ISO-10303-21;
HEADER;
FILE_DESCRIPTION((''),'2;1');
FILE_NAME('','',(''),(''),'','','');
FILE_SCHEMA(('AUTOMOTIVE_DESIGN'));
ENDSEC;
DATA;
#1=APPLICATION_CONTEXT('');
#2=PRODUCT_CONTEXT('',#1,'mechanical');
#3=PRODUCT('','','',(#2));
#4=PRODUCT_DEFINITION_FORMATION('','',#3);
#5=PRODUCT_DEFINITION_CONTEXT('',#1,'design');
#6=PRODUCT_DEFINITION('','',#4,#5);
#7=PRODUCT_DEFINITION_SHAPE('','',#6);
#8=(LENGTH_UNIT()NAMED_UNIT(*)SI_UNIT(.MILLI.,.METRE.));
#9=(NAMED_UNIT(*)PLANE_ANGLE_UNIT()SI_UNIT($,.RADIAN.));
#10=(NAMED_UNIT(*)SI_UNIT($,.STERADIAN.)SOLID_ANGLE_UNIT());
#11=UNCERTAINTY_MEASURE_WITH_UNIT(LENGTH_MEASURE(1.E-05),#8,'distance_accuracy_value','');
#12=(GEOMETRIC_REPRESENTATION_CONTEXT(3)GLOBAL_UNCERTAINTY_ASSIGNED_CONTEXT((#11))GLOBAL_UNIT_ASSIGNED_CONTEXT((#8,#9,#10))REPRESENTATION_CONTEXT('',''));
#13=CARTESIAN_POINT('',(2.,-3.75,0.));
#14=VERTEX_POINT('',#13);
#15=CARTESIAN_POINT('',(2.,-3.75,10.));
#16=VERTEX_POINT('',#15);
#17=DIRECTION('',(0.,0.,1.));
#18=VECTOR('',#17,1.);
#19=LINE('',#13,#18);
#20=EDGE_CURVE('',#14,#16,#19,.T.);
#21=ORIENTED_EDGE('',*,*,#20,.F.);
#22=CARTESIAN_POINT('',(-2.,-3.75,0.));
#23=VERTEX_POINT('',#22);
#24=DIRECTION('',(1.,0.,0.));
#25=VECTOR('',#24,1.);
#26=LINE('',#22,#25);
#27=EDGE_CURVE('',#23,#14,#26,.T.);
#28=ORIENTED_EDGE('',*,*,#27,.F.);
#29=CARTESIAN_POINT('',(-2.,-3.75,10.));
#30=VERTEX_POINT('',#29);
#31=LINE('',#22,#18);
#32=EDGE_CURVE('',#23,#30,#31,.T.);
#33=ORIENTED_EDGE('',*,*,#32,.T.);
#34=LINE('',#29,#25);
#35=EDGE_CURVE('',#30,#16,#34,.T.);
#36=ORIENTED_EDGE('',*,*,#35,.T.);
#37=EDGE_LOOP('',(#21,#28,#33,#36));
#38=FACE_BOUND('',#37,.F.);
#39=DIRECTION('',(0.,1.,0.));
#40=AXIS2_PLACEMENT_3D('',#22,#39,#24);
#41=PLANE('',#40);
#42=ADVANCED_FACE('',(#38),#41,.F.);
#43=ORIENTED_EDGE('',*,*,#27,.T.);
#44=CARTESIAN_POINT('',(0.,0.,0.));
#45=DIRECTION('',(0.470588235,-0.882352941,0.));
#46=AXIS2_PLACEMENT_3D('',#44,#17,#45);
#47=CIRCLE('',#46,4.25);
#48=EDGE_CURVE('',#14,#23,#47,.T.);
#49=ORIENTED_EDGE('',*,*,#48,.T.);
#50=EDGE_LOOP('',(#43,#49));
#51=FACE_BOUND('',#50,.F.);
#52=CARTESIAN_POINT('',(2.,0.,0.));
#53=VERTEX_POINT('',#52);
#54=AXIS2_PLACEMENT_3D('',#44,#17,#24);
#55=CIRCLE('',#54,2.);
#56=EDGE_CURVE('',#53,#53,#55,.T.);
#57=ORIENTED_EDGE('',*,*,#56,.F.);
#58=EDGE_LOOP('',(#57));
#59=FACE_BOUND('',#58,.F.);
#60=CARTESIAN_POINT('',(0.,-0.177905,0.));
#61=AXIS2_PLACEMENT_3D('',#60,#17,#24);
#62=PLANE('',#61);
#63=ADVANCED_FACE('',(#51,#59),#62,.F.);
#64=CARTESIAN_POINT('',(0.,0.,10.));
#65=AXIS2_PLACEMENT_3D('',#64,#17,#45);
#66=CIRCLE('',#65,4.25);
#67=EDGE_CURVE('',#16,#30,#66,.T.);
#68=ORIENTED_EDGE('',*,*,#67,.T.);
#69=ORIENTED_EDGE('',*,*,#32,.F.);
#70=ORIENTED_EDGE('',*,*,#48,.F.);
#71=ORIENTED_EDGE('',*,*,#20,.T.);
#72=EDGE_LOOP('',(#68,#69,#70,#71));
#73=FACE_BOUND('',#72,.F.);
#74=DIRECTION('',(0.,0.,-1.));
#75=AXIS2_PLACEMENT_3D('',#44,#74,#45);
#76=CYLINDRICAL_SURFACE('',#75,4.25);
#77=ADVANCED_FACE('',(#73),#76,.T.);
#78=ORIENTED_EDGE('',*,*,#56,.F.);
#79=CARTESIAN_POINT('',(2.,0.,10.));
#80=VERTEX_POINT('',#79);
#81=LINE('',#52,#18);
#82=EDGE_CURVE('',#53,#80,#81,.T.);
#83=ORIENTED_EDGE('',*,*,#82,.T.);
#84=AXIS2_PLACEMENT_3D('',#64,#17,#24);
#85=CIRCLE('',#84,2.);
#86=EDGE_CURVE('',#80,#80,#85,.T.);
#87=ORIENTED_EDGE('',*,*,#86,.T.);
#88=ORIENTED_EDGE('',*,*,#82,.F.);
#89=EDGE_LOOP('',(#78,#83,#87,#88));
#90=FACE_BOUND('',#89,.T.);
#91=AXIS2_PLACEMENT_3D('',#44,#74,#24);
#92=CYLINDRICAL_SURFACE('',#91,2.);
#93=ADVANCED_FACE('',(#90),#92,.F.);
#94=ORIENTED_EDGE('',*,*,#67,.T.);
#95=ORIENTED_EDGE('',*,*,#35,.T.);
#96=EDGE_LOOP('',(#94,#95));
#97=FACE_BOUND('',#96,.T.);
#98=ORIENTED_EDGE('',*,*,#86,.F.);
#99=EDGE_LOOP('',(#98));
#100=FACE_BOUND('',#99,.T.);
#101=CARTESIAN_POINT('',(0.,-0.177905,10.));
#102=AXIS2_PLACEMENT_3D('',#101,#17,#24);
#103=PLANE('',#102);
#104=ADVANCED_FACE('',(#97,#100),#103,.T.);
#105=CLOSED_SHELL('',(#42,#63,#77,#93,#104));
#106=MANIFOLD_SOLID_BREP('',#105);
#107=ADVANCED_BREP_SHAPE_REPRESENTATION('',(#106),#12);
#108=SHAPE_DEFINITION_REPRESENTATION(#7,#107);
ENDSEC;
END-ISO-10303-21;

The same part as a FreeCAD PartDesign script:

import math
import FreeCAD as App
import Part
import Sketcher

doc = App.newDocument("Part")
body = doc.addObject("PartDesign::Body", "Body")

# Sketch on XY plane
sketch1 = body.newObject("Sketcher::SketchObject", "Sketch")
sketch1.AttachmentSupport = (doc.getObject("XY_Plane"), [""])
sketch1.MapMode = "FlatFace"
sketch1.addGeometry(Part.LineSegment(App.Vector(-2, -3.8, 0), App.Vector(2, -3.8, 0)), False)
sketch1.addGeometry(Part.ArcOfCircle(Part.Circle(App.Vector(0, 0, 0), App.Vector(0, 0, 1), 4.2), math.radians(-62), math.radians(242)), False)
sketch1.addGeometry(Part.Circle(App.Vector(0, 0, 0), App.Vector(0, 0, 1), 2), False)
sketch1.addConstraint(Sketcher.Constraint("Coincident", 0, 1, 1, 2))
sketch1.addConstraint(Sketcher.Constraint("Coincident", 1, 1, 0, 2))
sketch1.addConstraint(Sketcher.Constraint("Horizontal", 0))
sketch1.addConstraint(Sketcher.Constraint("Coincident", 1, 3, -1, 1))
sketch1.addConstraint(Sketcher.Constraint("Coincident", 2, 3, -1, 1))
sketch1.addConstraint(Sketcher.Constraint("Diameter", 2, 4.0))
sketch1.addConstraint(Sketcher.Constraint("DistanceX", 0, 1, 0, 2, 4.0))
sketch1.addConstraint(Sketcher.Constraint("Radius", 1, 4.25))
pad1 = body.newObject("PartDesign::Pad", "Pad")
pad1.Profile = sketch1
pad1.Length = 10

doc.recompute()
